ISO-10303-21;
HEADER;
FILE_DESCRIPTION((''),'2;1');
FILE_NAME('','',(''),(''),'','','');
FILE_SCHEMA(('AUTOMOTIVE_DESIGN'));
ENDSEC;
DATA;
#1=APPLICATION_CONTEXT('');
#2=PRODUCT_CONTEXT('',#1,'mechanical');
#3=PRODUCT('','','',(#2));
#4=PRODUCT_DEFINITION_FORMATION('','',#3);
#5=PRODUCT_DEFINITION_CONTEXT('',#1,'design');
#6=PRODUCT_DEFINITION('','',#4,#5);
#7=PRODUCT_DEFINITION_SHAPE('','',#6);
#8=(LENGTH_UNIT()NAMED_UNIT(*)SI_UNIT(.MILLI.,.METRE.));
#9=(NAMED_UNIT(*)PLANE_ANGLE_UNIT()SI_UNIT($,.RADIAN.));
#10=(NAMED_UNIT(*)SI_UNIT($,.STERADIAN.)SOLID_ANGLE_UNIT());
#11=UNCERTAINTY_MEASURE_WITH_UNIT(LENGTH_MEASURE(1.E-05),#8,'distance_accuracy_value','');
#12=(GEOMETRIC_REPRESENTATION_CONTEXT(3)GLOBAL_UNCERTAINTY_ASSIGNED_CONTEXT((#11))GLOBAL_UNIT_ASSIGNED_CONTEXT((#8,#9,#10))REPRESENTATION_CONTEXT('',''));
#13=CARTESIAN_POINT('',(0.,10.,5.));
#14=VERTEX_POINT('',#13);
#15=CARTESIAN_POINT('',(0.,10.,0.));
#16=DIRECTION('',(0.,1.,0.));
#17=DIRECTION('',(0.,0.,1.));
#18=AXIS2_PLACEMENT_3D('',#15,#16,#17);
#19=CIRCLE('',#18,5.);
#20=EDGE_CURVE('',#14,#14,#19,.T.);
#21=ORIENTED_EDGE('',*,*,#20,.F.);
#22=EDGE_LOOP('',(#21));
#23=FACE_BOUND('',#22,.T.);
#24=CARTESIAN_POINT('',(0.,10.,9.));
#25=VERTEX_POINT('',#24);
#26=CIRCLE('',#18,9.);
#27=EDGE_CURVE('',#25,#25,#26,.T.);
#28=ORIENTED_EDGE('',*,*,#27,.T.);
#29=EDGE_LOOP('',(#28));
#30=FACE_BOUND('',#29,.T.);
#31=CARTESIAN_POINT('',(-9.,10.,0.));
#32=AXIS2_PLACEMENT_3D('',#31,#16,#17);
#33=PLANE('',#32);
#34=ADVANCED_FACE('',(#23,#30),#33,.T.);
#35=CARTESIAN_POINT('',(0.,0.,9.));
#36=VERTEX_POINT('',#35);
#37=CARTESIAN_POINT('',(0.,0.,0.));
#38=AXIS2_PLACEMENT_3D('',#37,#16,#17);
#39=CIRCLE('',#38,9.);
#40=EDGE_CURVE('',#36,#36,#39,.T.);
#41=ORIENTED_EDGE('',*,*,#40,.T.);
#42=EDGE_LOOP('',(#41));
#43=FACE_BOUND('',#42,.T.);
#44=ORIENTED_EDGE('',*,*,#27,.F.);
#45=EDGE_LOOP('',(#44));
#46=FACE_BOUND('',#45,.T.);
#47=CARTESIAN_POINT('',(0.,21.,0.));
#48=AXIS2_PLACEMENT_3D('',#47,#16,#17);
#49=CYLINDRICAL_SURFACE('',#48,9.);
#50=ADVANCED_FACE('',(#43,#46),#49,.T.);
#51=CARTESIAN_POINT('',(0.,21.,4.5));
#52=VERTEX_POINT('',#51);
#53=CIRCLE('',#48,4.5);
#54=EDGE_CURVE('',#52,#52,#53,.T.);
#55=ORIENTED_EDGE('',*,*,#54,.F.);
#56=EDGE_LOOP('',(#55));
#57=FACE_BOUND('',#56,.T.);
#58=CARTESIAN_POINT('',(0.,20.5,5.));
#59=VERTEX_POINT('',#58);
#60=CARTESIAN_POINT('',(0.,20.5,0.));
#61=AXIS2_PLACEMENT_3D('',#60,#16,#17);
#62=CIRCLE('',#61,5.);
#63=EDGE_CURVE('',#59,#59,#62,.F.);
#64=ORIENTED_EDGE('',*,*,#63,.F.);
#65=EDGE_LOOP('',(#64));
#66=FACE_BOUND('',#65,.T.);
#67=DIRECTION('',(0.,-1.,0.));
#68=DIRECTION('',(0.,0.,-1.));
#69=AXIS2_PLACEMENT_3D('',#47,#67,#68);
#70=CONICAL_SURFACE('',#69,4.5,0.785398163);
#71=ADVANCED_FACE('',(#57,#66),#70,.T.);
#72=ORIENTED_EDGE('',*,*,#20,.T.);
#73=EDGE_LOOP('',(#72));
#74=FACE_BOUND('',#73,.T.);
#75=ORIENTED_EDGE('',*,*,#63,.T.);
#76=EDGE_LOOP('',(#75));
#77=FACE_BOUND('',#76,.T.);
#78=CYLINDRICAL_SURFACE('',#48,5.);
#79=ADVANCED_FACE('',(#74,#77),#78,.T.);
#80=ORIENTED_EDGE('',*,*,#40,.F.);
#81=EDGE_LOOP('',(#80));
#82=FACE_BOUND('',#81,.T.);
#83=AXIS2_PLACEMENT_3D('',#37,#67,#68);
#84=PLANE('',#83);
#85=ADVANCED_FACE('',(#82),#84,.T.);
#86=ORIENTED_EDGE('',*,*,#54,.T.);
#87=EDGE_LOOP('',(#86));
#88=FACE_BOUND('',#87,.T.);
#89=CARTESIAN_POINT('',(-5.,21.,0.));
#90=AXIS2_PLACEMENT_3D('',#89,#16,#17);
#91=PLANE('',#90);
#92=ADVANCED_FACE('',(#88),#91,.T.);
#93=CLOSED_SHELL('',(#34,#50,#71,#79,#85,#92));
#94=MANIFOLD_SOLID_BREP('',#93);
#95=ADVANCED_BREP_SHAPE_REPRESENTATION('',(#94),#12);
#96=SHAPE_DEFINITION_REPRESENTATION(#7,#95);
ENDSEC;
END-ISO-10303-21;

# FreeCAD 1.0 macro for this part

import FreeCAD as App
import Part
import Sketcher

V = App.Vector
Q = App.Units.Quantity


def edges_at(feature, points):
    """Names of the edges that pass closest to the given points."""
    edges = feature.Shape.Edges
    near = lambda p: min(range(len(edges)), key=lambda i: edges[i].distToShape(Part.Vertex(*p))[0])
    return sorted({f"Edge{near(p) + 1}" for p in points})

doc = App.newDocument("Part")
body = doc.addObject("PartDesign::Body", "Body")

sketch1 = doc.addObject("Sketcher::SketchObject", "Sketch")
body.addObject(sketch1)
sketch1.AttachmentSupport = (doc.XY_Plane, [""])
sketch1.MapMode = "FlatFace"
sketch1.addGeometry([
    Part.LineSegment(V(-9, 0, 0), V(0, 0, 0)),
    Part.LineSegment(V(0, 0, 0), V(0, 21, 0)),
    Part.LineSegment(V(0, 21, 0), V(-5, 21, 0)),
    Part.LineSegment(V(-5, 21, 0), V(-5, 10, 0)),
    Part.LineSegment(V(-5, 10, 0), V(-9, 10, 0)),
    Part.LineSegment(V(-9, 10, 0), V(-9, 0, 0)),
], False)
sketch1.addConstraint([
    Sketcher.Constraint("Coincident", 0, 2, 1, 1),
    Sketcher.Constraint("Coincident", 1, 2, 2, 1),
    Sketcher.Constraint("Coincident", 2, 2, 3, 1),
    Sketcher.Constraint("Coincident", 3, 2, 4, 1),
    Sketcher.Constraint("Coincident", 4, 2, 5, 1),
    Sketcher.Constraint("Coincident", 5, 2, 0, 1),
    Sketcher.Constraint("Horizontal", 0),
    Sketcher.Constraint("Vertical", 1),
    Sketcher.Constraint("Horizontal", 2),
    Sketcher.Constraint("Vertical", 3),
    Sketcher.Constraint("Horizontal", 4),
    Sketcher.Constraint("Vertical", 5),
    Sketcher.Constraint("Coincident", 0, 2, -1, 1),
    Sketcher.Constraint("DistanceX", 0, 1, 0, 2, Q("9 mm")),
    Sketcher.Constraint("DistanceX", 2, 2, 2, 1, Q("5 mm")),
    Sketcher.Constraint("DistanceY", 1, 1, 1, 2, Q("21 mm")),
    Sketcher.Constraint("DistanceY", 3, 2, 3, 1, Q("11 mm")),
])
revolution = doc.addObject("PartDesign::Revolution", "Revolution")
body.addObject(revolution)
revolution.Profile = sketch1
revolution.ReferenceAxis = (sketch1, ["V_Axis"])
revolution.Angle = 360
doc.recompute()

chamfer = doc.addObject("PartDesign::Chamfer", "Chamfer")
body.addObject(chamfer)
chamfer.Base = (revolution, edges_at(revolution, [(0, 21, -5)]))
chamfer.Size = 0.5

doc.recompute()
